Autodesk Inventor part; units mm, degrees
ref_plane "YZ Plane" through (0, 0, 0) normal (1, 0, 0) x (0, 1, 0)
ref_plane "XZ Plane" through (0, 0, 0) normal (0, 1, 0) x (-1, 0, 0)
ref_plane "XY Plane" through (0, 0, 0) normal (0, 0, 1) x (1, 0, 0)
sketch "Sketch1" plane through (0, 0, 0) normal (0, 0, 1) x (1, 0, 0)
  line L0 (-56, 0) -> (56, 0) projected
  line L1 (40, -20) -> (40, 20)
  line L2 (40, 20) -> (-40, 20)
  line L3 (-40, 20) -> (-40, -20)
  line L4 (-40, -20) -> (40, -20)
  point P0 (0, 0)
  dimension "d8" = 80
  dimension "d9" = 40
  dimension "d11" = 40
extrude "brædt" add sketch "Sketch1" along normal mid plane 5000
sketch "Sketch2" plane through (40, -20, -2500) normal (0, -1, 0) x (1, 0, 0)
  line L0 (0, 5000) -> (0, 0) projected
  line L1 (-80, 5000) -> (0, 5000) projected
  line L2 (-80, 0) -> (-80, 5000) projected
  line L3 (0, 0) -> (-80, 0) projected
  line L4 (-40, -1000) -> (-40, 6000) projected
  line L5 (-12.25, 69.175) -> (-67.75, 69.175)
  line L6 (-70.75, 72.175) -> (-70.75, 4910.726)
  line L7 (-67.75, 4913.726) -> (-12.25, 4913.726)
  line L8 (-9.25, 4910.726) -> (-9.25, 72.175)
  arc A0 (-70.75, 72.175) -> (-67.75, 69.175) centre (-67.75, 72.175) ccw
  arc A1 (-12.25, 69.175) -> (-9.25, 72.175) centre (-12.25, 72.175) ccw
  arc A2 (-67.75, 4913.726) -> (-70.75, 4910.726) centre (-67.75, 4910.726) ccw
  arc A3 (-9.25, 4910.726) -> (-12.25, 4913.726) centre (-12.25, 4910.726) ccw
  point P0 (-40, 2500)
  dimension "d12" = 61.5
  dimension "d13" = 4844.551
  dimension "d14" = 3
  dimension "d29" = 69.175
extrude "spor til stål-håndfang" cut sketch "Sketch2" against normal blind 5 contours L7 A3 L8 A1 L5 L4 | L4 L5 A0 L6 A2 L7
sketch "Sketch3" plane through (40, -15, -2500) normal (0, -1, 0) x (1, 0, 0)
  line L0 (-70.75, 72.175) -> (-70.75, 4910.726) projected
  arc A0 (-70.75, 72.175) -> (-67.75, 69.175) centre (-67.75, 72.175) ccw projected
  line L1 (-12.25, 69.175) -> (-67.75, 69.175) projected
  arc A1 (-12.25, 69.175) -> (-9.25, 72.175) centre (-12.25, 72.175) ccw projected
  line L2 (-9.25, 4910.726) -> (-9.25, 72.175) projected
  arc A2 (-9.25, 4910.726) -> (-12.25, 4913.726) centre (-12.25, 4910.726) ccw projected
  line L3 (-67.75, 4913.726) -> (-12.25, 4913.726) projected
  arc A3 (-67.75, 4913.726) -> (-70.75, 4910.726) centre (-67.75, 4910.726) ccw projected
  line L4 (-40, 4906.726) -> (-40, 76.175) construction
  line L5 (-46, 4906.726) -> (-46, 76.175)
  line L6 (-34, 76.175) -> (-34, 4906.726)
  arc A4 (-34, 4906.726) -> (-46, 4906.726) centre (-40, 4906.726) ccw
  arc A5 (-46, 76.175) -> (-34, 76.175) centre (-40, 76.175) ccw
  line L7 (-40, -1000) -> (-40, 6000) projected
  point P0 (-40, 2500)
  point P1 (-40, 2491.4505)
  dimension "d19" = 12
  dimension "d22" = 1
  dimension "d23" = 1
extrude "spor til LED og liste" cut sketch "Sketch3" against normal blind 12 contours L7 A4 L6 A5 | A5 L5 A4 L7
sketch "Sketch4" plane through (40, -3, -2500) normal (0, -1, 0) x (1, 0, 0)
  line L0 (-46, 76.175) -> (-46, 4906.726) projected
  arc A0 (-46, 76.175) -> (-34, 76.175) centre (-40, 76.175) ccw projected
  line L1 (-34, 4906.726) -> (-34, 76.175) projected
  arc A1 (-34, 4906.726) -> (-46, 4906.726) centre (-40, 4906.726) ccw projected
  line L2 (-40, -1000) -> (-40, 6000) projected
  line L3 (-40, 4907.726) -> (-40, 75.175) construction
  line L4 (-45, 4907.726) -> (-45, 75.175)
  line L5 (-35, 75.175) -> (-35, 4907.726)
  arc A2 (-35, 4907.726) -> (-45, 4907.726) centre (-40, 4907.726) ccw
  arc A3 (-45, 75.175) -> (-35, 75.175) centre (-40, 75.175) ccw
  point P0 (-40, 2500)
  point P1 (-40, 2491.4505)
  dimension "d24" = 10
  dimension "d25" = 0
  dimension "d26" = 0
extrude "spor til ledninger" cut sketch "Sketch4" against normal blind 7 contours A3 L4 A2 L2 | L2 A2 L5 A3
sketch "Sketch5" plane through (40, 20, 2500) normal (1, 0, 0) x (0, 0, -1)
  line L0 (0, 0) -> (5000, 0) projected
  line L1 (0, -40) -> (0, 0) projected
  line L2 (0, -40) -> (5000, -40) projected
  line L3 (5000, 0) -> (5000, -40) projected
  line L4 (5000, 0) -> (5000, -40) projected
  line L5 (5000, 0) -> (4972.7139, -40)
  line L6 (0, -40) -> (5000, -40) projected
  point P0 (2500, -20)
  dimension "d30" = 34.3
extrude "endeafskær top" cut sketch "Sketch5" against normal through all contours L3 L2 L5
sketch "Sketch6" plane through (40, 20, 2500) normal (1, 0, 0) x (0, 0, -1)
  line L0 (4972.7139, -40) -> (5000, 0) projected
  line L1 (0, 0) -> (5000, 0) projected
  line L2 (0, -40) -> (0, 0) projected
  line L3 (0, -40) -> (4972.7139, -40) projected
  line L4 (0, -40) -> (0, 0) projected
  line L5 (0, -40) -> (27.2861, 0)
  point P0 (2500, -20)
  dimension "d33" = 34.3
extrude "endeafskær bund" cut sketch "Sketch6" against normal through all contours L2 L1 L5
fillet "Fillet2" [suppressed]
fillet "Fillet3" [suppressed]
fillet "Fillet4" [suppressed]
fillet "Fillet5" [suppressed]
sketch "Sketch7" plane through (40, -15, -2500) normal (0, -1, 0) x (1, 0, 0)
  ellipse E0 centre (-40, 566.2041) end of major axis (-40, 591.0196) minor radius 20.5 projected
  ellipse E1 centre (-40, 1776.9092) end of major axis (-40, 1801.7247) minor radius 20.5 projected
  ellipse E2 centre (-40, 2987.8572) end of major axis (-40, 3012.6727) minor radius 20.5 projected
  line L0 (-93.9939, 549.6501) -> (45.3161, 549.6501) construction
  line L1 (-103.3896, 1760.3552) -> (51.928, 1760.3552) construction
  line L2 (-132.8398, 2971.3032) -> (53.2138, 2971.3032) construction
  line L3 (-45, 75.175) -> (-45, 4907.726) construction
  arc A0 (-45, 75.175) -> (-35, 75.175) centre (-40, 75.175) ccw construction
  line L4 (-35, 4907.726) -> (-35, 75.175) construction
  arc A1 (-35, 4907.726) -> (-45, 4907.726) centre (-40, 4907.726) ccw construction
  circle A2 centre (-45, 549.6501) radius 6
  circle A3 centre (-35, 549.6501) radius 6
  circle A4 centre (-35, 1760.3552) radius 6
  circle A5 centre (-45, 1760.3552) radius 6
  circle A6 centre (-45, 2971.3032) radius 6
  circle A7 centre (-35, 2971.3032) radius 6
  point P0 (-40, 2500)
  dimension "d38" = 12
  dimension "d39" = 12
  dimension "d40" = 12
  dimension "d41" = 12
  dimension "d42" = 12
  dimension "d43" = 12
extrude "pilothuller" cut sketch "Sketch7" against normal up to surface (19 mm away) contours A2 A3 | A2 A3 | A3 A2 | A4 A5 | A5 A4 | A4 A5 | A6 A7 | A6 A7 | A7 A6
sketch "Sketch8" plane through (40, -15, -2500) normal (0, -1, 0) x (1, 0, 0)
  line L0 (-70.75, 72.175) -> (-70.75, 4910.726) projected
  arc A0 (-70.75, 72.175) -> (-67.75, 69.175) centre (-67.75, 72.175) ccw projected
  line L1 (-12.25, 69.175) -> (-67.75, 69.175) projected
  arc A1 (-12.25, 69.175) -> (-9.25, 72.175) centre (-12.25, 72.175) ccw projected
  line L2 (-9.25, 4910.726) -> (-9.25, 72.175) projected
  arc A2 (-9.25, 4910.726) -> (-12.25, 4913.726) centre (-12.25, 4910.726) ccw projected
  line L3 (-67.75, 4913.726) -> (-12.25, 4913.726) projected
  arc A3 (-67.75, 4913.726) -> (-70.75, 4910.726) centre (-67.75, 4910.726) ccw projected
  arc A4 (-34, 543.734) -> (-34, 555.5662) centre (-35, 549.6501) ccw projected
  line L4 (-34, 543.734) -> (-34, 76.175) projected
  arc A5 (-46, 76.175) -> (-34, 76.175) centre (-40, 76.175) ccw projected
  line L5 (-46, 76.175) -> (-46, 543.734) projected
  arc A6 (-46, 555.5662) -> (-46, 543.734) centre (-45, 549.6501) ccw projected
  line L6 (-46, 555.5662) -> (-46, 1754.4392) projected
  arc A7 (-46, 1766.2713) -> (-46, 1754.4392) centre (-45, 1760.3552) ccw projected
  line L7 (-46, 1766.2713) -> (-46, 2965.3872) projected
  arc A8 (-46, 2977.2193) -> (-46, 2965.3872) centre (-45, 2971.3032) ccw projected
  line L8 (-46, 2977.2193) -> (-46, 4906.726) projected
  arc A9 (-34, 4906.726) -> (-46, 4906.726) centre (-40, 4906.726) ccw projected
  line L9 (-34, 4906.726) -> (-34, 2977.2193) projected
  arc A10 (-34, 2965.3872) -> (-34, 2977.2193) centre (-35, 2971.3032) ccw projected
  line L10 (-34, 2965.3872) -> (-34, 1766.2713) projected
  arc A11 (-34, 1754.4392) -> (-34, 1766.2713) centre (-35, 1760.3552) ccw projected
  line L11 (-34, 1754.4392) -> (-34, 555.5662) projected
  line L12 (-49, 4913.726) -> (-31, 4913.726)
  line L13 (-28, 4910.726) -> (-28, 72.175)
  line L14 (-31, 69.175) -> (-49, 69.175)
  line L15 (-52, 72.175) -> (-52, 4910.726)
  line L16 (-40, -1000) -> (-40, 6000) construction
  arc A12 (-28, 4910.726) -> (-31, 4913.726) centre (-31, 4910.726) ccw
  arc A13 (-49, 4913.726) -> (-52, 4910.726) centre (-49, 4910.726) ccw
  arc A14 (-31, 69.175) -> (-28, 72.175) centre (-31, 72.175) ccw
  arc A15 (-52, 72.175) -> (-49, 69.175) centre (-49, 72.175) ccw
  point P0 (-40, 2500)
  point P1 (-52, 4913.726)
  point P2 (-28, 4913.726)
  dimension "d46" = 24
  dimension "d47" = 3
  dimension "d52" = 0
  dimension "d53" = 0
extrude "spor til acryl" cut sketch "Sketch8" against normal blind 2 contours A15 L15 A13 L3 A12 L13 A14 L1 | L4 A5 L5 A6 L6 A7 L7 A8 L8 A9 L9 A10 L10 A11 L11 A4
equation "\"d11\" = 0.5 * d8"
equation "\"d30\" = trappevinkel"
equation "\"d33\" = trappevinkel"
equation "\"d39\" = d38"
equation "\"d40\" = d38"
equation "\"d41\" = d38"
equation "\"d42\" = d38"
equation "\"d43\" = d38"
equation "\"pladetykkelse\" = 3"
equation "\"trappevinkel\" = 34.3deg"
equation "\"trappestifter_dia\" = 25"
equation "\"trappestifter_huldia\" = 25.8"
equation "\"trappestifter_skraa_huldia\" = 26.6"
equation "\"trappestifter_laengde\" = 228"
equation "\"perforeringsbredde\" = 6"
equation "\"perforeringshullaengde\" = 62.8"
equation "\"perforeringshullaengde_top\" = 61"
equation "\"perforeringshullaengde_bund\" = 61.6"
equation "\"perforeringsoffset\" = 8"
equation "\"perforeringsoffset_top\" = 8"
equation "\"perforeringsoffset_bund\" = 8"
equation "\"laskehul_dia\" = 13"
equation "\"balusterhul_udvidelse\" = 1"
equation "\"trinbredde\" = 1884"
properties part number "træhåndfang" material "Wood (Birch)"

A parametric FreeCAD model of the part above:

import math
import FreeCAD as App
import Part
import Sketcher
Q = App.Units.Quantity


def add_polygon(sketch, points):
    """Adds a closed chain of lines whose ends are joined by coincident constraints."""
    first, n = sketch.GeometryCount, len(points)
    for a, b in zip(points, points[1:] + points[:1]):
        sketch.addGeometry(Part.LineSegment(App.Vector(*a, 0), App.Vector(*b, 0)), False)
    for i in range(n):
        sketch.addConstraint(Sketcher.Constraint("Coincident", first + i, 2, first + (i + 1) % n, 1))

doc = App.newDocument("Part")
body = doc.addObject("PartDesign::Body", "Body")

# Sketch on XY plane
sketch1 = body.newObject("Sketcher::SketchObject", "Sketch")
sketch1.AttachmentSupport = (doc.getObject("XY_Plane"), [""])
sketch1.MapMode = "FlatFace"
add_polygon(sketch1, [(-40, 20), (-40, -20), (40, -20), (40, 20)])  # lines 0-3
sketch1.addConstraint([
    Sketcher.Constraint("Vertical", 0),
    Sketcher.Constraint("Horizontal", 1),
    Sketcher.Constraint("Vertical", 2),
    Sketcher.Constraint("Horizontal", 3),
    Sketcher.Constraint("Symmetric", 0, 2, 2, 2, -1, 1),
    Sketcher.Constraint("DistanceX", 1, 1, 1, 2, 80.0),
    Sketcher.Constraint("DistanceY", 0, 2, 0, 1, 40.0),
])
pad1 = body.newObject("PartDesign::Pad", "Pad")
pad1.Profile = sketch1
pad1.Length = 5000
pad1.Midplane = True

# Sketch on XZ plane
sketch2 = body.newObject("Sketcher::SketchObject", "Sketch001")
sketch2.AttachmentSupport = (doc.getObject("XZ_Plane"), [""])
sketch2.MapMode = "FlatFace"
sketch2.AttachmentOffset = App.Placement(App.Vector(0, 0, 20), App.Rotation())
sketch2.addGeometry([
    Part.LineSegment(App.Vector(27.8, 2413.7, 0), App.Vector(-27.8, 2413.7, 0)),  # 0
    Part.ArcOfCircle(Part.Circle(App.Vector(-27.8, 2410.7, 0), App.Vector(0, 0, 1), 3), math.radians(90), math.radians(180)),  # 1
    Part.LineSegment(App.Vector(-30.8, 2410.7, 0), App.Vector(-30.8, -2427.8, 0)),  # 2
    Part.ArcOfCircle(Part.Circle(App.Vector(-27.8, -2427.8, 0), App.Vector(0, 0, 1), 3), math.radians(180), math.radians(270)),  # 3
    Part.LineSegment(App.Vector(-27.8, -2430.8, 0), App.Vector(27.8, -2430.8, 0)),  # 4
    Part.ArcOfCircle(Part.Circle(App.Vector(27.8, -2427.8, 0), App.Vector(0, 0, 1), 3), math.radians(-90), math.radians(0)),  # 5
    Part.LineSegment(App.Vector(30.8, -2427.8, 0), App.Vector(30.8, 2410.7, 0)),  # 6
    Part.ArcOfCircle(Part.Circle(App.Vector(27.8, 2410.7, 0), App.Vector(0, 0, 1), 3), math.radians(0), math.radians(90)),  # 7
], False)
sketch2.addConstraint([
    Sketcher.Constraint("Tangent", 0, 2, 1, 1),
    Sketcher.Constraint("Tangent", 1, 2, 2, 1),
    Sketcher.Constraint("Tangent", 2, 2, 3, 1),
    Sketcher.Constraint("Tangent", 3, 2, 4, 1),
    Sketcher.Constraint("Tangent", 4, 2, 5, 1),
    Sketcher.Constraint("Tangent", 5, 2, 6, 1),
    Sketcher.Constraint("Tangent", 6, 2, 7, 1),
    Sketcher.Constraint("Tangent", 7, 2, 0, 1),
    Sketcher.Constraint("Horizontal", 0),
    Sketcher.Constraint("Vertical", 2),
    Sketcher.Constraint("Horizontal", 4),
    Sketcher.Constraint("Vertical", 6),
    Sketcher.Constraint("Equal", 1, 3),
    Sketcher.Constraint("Equal", 3, 5),
    Sketcher.Constraint("Equal", 5, 7),
    Sketcher.Constraint("Radius", 1, 3.0),
    Sketcher.Constraint("DistanceX", 2, 2, 5, 2, 61.5),
    Sketcher.Constraint("DistanceY", 2, 2, 2, 1, 4838.551),
    Sketcher.Constraint("DistanceX", 1, 3, -1, 1, 27.75),
    Sketcher.Constraint("DistanceY", -1, 1, 1, 3, 2410.726),
])
pocket1 = body.newObject("PartDesign::Pocket", "Pocket")
pocket1.Profile = sketch2
pocket1.Length = 5

# Sketch on XZ plane
sketch3 = body.newObject("Sketcher::SketchObject", "Sketch002")
sketch3.AttachmentSupport = (doc.getObject("XZ_Plane"), [""])
sketch3.MapMode = "FlatFace"
sketch3.AttachmentOffset = App.Placement(App.Vector(0, 0, 15), App.Rotation())
sketch3.addGeometry([
    Part.ArcOfCircle(Part.Circle(App.Vector(0, 2407, 0), App.Vector(0, 0, 1), 6), math.radians(0), math.radians(180)),
    Part.LineSegment(App.Vector(-6, 2407, 0), App.Vector(-6, -2424, 0)),
    Part.ArcOfCircle(Part.Circle(App.Vector(0, -2424, 0), App.Vector(0, 0, 1), 6), math.radians(180), math.radians(360)),
    Part.LineSegment(App.Vector(6, -2424, 0), App.Vector(6, 2407, 0)),
], False)
sketch3.addConstraint([
    Sketcher.Constraint("Tangent", 0, 2, 1, 1),
    Sketcher.Constraint("Tangent", 1, 2, 2, 1),
    Sketcher.Constraint("Tangent", 2, 2, 3, 1),
    Sketcher.Constraint("Tangent", 3, 2, 0, 1),
    Sketcher.Constraint("Vertical", 1),
    Sketcher.Constraint("Vertical", 3),
    Sketcher.Constraint("PointOnObject", 0, 3, -2),
    Sketcher.Constraint("Radius", 0, 6.0),
    Sketcher.Constraint("DistanceY", 1, 2, 1, 1, 4830.551),
    Sketcher.Constraint("DistanceY", -1, 1, 0, 3, 2406.726),
])
pocket2 = body.newObject("PartDesign::Pocket", "Pocket001")
pocket2.Profile = sketch3
pocket2.Length = 12

# Sketch on XZ plane
sketch4 = body.newObject("Sketcher::SketchObject", "Sketch003")
sketch4.AttachmentSupport = (doc.getObject("XZ_Plane"), [""])
sketch4.MapMode = "FlatFace"
sketch4.AttachmentOffset = App.Placement(App.Vector(0, 0, 3), App.Rotation())
sketch4.addGeometry([
    Part.ArcOfCircle(Part.Circle(App.Vector(0, -2425, 0), App.Vector(0, 0, 1), 5), math.radians(180), math.radians(360)),
    Part.LineSegment(App.Vector(5, -2425, 0), App.Vector(5, 2408, 0)),
    Part.ArcOfCircle(Part.Circle(App.Vector(0, 2408, 0), App.Vector(0, 0, 1), 5), math.radians(0), math.radians(180)),
    Part.LineSegment(App.Vector(-5, 2408, 0), App.Vector(-5, -2425, 0)),
], False)
sketch4.addConstraint([
    Sketcher.Constraint("Tangent", 0, 2, 1, 1),
    Sketcher.Constraint("Tangent", 1, 2, 2, 1),
    Sketcher.Constraint("Tangent", 2, 2, 3, 1),
    Sketcher.Constraint("Tangent", 3, 2, 0, 1),
    Sketcher.Constraint("Vertical", 1),
    Sketcher.Constraint("Vertical", 3),
    Sketcher.Constraint("PointOnObject", 0, 3, -2),
    Sketcher.Constraint("Radius", 0, 5.0),
    Sketcher.Constraint("DistanceY", 1, 1, 1, 2, 4832.551),
    Sketcher.Constraint("DistanceY", 0, 3, -1, 1, 2424.825),
])
pocket3 = body.newObject("PartDesign::Pocket", "Pocket002")
pocket3.Profile = sketch4
pocket3.Length = 7

# Sketch on YZ plane
sketch5 = body.newObject("Sketcher::SketchObject", "Sketch004")
sketch5.AttachmentSupport = (doc.getObject("YZ_Plane"), [""])
sketch5.MapMode = "FlatFace"
sketch5.AttachmentOffset = App.Placement(App.Vector(0, 0, 40), App.Rotation())
add_polygon(sketch5, [(-20, -2500), (20, -2500), (-20, -2473)])  # lines 0-2
sketch5.addConstraint([
    Sketcher.Constraint("Horizontal", 0),
    Sketcher.Constraint("Vertical", 2),
    Sketcher.Constraint("DistanceX", 0, 1, 0, 2, 40.0),
    Sketcher.Constraint("DistanceX", -1, 1, 0, 2, 20.0),
    Sketcher.Constraint("DistanceY", 0, 2, -1, 1, 2500.0),
    Sketcher.Constraint("Angle", 1, Q("145.7 deg")),
])
pocket4 = body.newObject("PartDesign::Pocket", "Pocket003")
pocket4.Profile = sketch5
pocket4.Type = "ThroughAll"

# Sketch on YZ plane
sketch6 = body.newObject("Sketcher::SketchObject", "Sketch005")
sketch6.AttachmentSupport = (doc.getObject("YZ_Plane"), [""])
sketch6.MapMode = "FlatFace"
sketch6.AttachmentOffset = App.Placement(App.Vector(0, 0, 40), App.Rotation())
add_polygon(sketch6, [(20, 2500), (-20, 2500), (20, 2473)])  # lines 0-2
sketch6.addConstraint([
    Sketcher.Constraint("Horizontal", 0),
    Sketcher.Constraint("Vertical", 2),
    Sketcher.Constraint("Angle", 1, Q("-34.3 deg")),
    Sketcher.Constraint("DistanceX", 0, 2, 0, 1, 40.0),
    Sketcher.Constraint("DistanceX", 0, 2, -1, 1, 20.0),
    Sketcher.Constraint("DistanceY", -1, 1, 0, 2, 2500.0),
])
pocket5 = body.newObject("PartDesign::Pocket", "Pocket004")
pocket5.Profile = sketch6
pocket5.Type = "ThroughAll"

# Sketch on XZ plane
sketch7 = body.newObject("Sketcher::SketchObject", "Sketch006")
sketch7.AttachmentSupport = (doc.getObject("XZ_Plane"), [""])
sketch7.MapMode = "FlatFace"
sketch7.AttachmentOffset = App.Placement(App.Vector(0, 0, 15), App.Rotation())
sketch7.addGeometry([
    Part.ArcOfCircle(Part.Circle(App.Vector(5, -1950, 0), App.Vector(0, 0, 1), 6), math.radians(-146), math.radians(146)),  # 0
    Part.ArcOfCircle(Part.Circle(App.Vector(-5, -1950, 0), App.Vector(0, 0, 1), 6), math.radians(34), math.radians(326)),  # 1
    Part.ArcOfCircle(Part.Circle(App.Vector(5, -740, 0), App.Vector(0, 0, 1), 6), math.radians(-146), math.radians(146)),  # 2
    Part.ArcOfCircle(Part.Circle(App.Vector(-5, -740, 0), App.Vector(0, 0, 1), 6), math.radians(34), math.radians(326)),  # 3
    Part.ArcOfCircle(Part.Circle(App.Vector(5, 471, 0), App.Vector(0, 0, 1), 6), math.radians(-146), math.radians(146)),  # 4
    Part.ArcOfCircle(Part.Circle(App.Vector(-5, 471, 0), App.Vector(0, 0, 1), 6), math.radians(34), math.radians(326)),  # 5
], False)
sketch7.addConstraint([
    Sketcher.Constraint("Coincident", 0, 1, 1, 2),
    Sketcher.Constraint("Coincident", 1, 1, 0, 2),
    Sketcher.Constraint("Coincident", 2, 1, 3, 2),
    Sketcher.Constraint("Coincident", 3, 1, 2, 2),
    Sketcher.Constraint("Coincident", 4, 1, 5, 2),
    Sketcher.Constraint("Coincident", 5, 1, 4, 2),
    Sketcher.Constraint("Equal", 0, 1),
    Sketcher.Constraint("Equal", 1, 2),
    Sketcher.Constraint("Equal", 2, 3),
    Sketcher.Constraint("Equal", 3, 4),
    Sketcher.Constraint("Equal", 4, 5),
    Sketcher.Constraint("Symmetric", 0, 3, 1, 3, -2),
    Sketcher.Constraint("Symmetric", 2, 3, 3, 3, -2),
    Sketcher.Constraint("Symmetric", 4, 3, 5, 3, -2),
    Sketcher.Constraint("Vertical", 0, 3, 2, 3),
    Sketcher.Constraint("Vertical", 2, 3, 4, 3),
    Sketcher.Constraint("Radius", 0, 6.0),
    Sketcher.Constraint("DistanceX", -1, 1, 0, 3, 5.0),
    Sketcher.Constraint("DistanceY", 0, 3, -1, 1, 1950.35),
    Sketcher.Constraint("DistanceY", 0, 3, 2, 3, 1210.705),
    Sketcher.Constraint("DistanceY", 2, 3, 4, 3, 1210.948),
])
pocket6 = body.newObject("PartDesign::Pocket", "Pocket005")
pocket6.Profile = sketch7
pocket6.Length = 19

# Sketch on XZ plane
sketch8 = body.newObject("Sketcher::SketchObject", "Sketch007")
sketch8.AttachmentSupport = (doc.getObject("XZ_Plane"), [""])
sketch8.MapMode = "FlatFace"
sketch8.AttachmentOffset = App.Placement(App.Vector(0, 0, 15), App.Rotation())
sketch8.addGeometry([
    Part.ArcOfCircle(Part.Circle(App.Vector(-9, -2427.8, 0), App.Vector(0, 0, 1), 3), math.radians(180), math.radians(270)),  # 0
    Part.LineSegment(App.Vector(-9, -2430.8, 0), App.Vector(9, -2430.8, 0)),  # 1
    Part.ArcOfCircle(Part.Circle(App.Vector(9, -2427.8, 0), App.Vector(0, 0, 1), 3), math.radians(-90), math.radians(0)),  # 2
    Part.LineSegment(App.Vector(12, -2427.8, 0), App.Vector(12, 2410.7, 0)),  # 3
    Part.ArcOfCircle(Part.Circle(App.Vector(9, 2410.7, 0), App.Vector(0, 0, 1), 3), math.radians(0), math.radians(90)),  # 4
    Part.LineSegment(App.Vector(9, 2413.7, 0), App.Vector(-9, 2413.7, 0)),  # 5
    Part.ArcOfCircle(Part.Circle(App.Vector(-9, 2410.7, 0), App.Vector(0, 0, 1), 3), math.radians(90), math.radians(180)),  # 6
    Part.LineSegment(App.Vector(-12, 2410.7, 0), App.Vector(-12, -2427.8, 0)),  # 7
], False)
sketch8.addConstraint([
    Sketcher.Constraint("Tangent", 0, 2, 1, 1),
    Sketcher.Constraint("Tangent", 1, 2, 2, 1),
    Sketcher.Constraint("Tangent", 2, 2, 3, 1),
    Sketcher.Constraint("Tangent", 3, 2, 4, 1),
    Sketcher.Constraint("Tangent", 4, 2, 5, 1),
    Sketcher.Constraint("Tangent", 5, 2, 6, 1),
    Sketcher.Constraint("Tangent", 6, 2, 7, 1),
    Sketcher.Constraint("Tangent", 7, 2, 0, 1),
    Sketcher.Constraint("Horizontal", 1),
    Sketcher.Constraint("Vertical", 3),
    Sketcher.Constraint("Horizontal", 5),
    Sketcher.Constraint("Vertical", 7),
    Sketcher.Constraint("Equal", 0, 2),
    Sketcher.Constraint("Equal", 2, 4),
    Sketcher.Constraint("Equal", 4, 6),
    Sketcher.Constraint("Radius", 0, 3.0),
    Sketcher.Constraint("DistanceX", 6, 2, 3, 2, 24.0),
    Sketcher.Constraint("DistanceX", 0, 3, -1, 1, 9.0),
    Sketcher.Constraint("DistanceY", 3, 1, 3, 2, 4838.551),
    Sketcher.Constraint("DistanceY", 0, 3, -1, 1, 2427.825),
])
pocket7 = body.newObject("PartDesign::Pocket", "Pocket006")
pocket7.Profile = sketch8
pocket7.Length = 2

doc.recompute()
